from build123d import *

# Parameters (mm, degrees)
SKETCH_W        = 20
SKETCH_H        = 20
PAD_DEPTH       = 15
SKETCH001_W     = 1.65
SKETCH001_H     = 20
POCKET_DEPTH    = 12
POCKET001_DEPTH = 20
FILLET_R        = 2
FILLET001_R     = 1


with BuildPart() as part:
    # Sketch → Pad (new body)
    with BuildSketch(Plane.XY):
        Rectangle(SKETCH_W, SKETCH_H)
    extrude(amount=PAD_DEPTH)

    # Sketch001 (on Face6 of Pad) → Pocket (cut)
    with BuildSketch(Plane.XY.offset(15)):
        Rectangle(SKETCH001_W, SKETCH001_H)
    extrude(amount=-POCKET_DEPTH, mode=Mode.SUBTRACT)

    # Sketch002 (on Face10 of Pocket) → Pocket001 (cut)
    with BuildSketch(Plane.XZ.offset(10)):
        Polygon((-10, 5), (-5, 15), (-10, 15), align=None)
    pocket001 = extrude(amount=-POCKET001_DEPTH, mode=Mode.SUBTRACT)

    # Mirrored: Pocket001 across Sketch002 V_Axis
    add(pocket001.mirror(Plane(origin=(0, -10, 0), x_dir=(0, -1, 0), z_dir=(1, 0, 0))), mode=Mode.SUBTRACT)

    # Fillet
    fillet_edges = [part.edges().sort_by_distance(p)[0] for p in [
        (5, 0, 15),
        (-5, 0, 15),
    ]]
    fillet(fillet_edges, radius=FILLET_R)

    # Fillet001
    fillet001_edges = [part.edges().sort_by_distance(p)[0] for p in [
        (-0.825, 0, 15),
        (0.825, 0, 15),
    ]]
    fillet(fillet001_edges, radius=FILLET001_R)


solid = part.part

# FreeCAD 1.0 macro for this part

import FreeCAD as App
import Part
import Sketcher
from FreeCAD import Vector
Q = App.Units.Quantity


def edges_at(feature, points):
    """Names of the edges that pass closest to the given points."""
    edges = feature.Shape.Edges
    near = lambda p: min(range(len(edges)), key=lambda i: edges[i].distToShape(Part.Vertex(*p))[0])
    return sorted({f"Edge{near(p) + 1}" for p in points})

doc = App.newDocument("Part")
params = doc.addObject("Spreadsheet::Sheet", "Params")
for row, (alias, value) in enumerate([
    ("sketch1_width", "20 mm"),
    ("pad1_length", "15 mm"),
    ("sketch2_height", "20 mm"),
    ("sketch2_width", "1.65 mm"),
    ("pocket1_length", "12 mm"),
    ("sketch3_width", "5 mm"),
    ("sketch3_height", "10 mm"),
    ("pocket2_length", "20 mm"),
    ("fillet_radius", "2 mm"),
    ("fillet2_radius", "1 mm"),
], start=1):
    params.set(f"A{row}", alias)
    params.set(f"B{row}", "=" + value)
    params.setAlias(f"B{row}", alias)

body = doc.addObject("PartDesign::Body", "Body")

sketch1 = doc.addObject("Sketcher::SketchObject", "Sketch")
body.addObject(sketch1)
sketch1.AttachmentSupport = (doc.XY_Plane, [""])
sketch1.MapMode = "FlatFace"
sketch1.addGeometry([
    Part.LineSegment(Vector(-10, 10, 0), Vector(-10, -10, 0)),
    Part.LineSegment(Vector(-10, -10, 0), Vector(10, -10, 0)),
    Part.LineSegment(Vector(10, -10, 0), Vector(10, 10, 0)),
    Part.LineSegment(Vector(10, 10, 0), Vector(-10, 10, 0)),
], False)
sketch1.addConstraint([
    Sketcher.Constraint("Coincident", 0, 2, 1, 1),
    Sketcher.Constraint("Coincident", 1, 2, 2, 1),
    Sketcher.Constraint("Coincident", 2, 2, 3, 1),
    Sketcher.Constraint("Coincident", 3, 2, 0, 1),
    Sketcher.Constraint("Vertical", 0),
    Sketcher.Constraint("Horizontal", 1),
    Sketcher.Constraint("Vertical", 2),
    Sketcher.Constraint("Horizontal", 3),
    Sketcher.Constraint("Symmetric", 0, 2, 2, 2, -1, 1),
    Sketcher.Constraint("Equal", 3, 0),
    Sketcher.Constraint("DistanceX", 1, 1, 1, 2, Q("20 mm")),
])
sketch1.setExpression("Constraints[10]", "Params.sketch1_width")
pad1 = doc.addObject("PartDesign::Pad", "Pad")
body.addObject(pad1)
pad1.Profile = sketch1
pad1.setExpression("Length", "Params.pad1_length")

sketch2 = doc.addObject("Sketcher::SketchObject", "Sketch001")
body.addObject(sketch2)
sketch2.AttachmentSupport = (doc.XY_Plane, [""])
sketch2.MapMode = "FlatFace"
sketch2.AttachmentOffset = App.Placement(Vector(0, 0, 15), App.Rotation())
sketch2.addGeometry([
    Part.LineSegment(Vector(-0.8, 10, 0), Vector(-0.8, -10, 0)),
    Part.LineSegment(Vector(-0.8, -10, 0), Vector(0.8, -10, 0)),
    Part.LineSegment(Vector(0.8, -10, 0), Vector(0.8, 10, 0)),
    Part.LineSegment(Vector(0.8, 10, 0), Vector(-0.8, 10, 0)),
], False)
sketch2.addConstraint([
    Sketcher.Constraint("Coincident", 0, 2, 1, 1),
    Sketcher.Constraint("Coincident", 1, 2, 2, 1),
    Sketcher.Constraint("Coincident", 2, 2, 3, 1),
    Sketcher.Constraint("Coincident", 3, 2, 0, 1),
    Sketcher.Constraint("Vertical", 0),
    Sketcher.Constraint("Horizontal", 1),
    Sketcher.Constraint("Vertical", 2),
    Sketcher.Constraint("Horizontal", 3),
    Sketcher.Constraint("Symmetric", 0, 2, 2, 2, -1, 1),
    Sketcher.Constraint("DistanceY", 0, 2, 0, 1, Q("20 mm")),
    Sketcher.Constraint("DistanceX", 1, 1, 1, 2, Q("1.65 mm")),
])
sketch2.setExpression("Constraints[9]", "Params.sketch2_height")
sketch2.setExpression("Constraints[10]", "Params.sketch2_width")
pocket1 = doc.addObject("PartDesign::Pocket", "Pocket")
body.addObject(pocket1)
pocket1.Profile = sketch2
pocket1.setExpression("Length", "Params.pocket1_length")

sketch3 = doc.addObject("Sketcher::SketchObject", "Sketch002")
body.addObject(sketch3)
sketch3.AttachmentSupport = (doc.XZ_Plane, [""])
sketch3.MapMode = "FlatFace"
sketch3.AttachmentOffset = App.Placement(Vector(0, 0, 10), App.Rotation())
sketch3.addGeometry([
    Part.LineSegment(Vector(-10, 5, 0), Vector(-5, 15, 0)),
    Part.LineSegment(Vector(-5, 15, 0), Vector(-10, 15, 0)),
    Part.LineSegment(Vector(-10, 15, 0), Vector(-10, 5, 0)),
], False)
sketch3.addConstraint([
    Sketcher.Constraint("Coincident", 0, 2, 1, 1),
    Sketcher.Constraint("Coincident", 1, 2, 2, 1),
    Sketcher.Constraint("Coincident", 2, 2, 0, 1),
    Sketcher.Constraint("Horizontal", 1),
    Sketcher.Constraint("Vertical", 2),
    Sketcher.Constraint("DistanceX", 1, 2, 1, 1, Q("5 mm")),
    Sketcher.Constraint("DistanceY", 2, 2, 2, 1, Q("10 mm")),
    Sketcher.Constraint("DistanceX", 0, 2, -1, 1, Q("5 mm")),
    Sketcher.Constraint("DistanceY", -1, 1, 0, 2, Q("15 mm")),
])
sketch3.setExpression("Constraints[5]", "Params.sketch3_width")
sketch3.setExpression("Constraints[6]", "Params.sketch3_height")
pocket2 = doc.addObject("PartDesign::Pocket", "Pocket001")
body.addObject(pocket2)
pocket2.Profile = sketch3
pocket2.setExpression("Length", "Params.pocket2_length")
doc.recompute()

mirrored = doc.addObject("PartDesign::Mirrored", "Mirrored")
body.addObject(mirrored)
mirrored.Originals = [pocket2]
mirrored.MirrorPlane = (doc.YZ_Plane, [""])
body.Tip = mirrored
doc.recompute()

fillet = doc.addObject("PartDesign::Fillet", "Fillet")
body.addObject(fillet)
fillet.Base = (mirrored, edges_at(mirrored, [(5, 0, 15), (-5, 0, 15)]))
fillet.setExpression("Radius", "Params.fillet_radius")
doc.recompute()

fillet2 = doc.addObject("PartDesign::Fillet", "Fillet001")
body.addObject(fillet2)
fillet2.Base = (fillet, edges_at(fillet, [(-0.825, 0, 15), (0.825, 0, 15)]))
fillet2.setExpression("Radius", "Params.fillet2_radius")

doc.recompute()
